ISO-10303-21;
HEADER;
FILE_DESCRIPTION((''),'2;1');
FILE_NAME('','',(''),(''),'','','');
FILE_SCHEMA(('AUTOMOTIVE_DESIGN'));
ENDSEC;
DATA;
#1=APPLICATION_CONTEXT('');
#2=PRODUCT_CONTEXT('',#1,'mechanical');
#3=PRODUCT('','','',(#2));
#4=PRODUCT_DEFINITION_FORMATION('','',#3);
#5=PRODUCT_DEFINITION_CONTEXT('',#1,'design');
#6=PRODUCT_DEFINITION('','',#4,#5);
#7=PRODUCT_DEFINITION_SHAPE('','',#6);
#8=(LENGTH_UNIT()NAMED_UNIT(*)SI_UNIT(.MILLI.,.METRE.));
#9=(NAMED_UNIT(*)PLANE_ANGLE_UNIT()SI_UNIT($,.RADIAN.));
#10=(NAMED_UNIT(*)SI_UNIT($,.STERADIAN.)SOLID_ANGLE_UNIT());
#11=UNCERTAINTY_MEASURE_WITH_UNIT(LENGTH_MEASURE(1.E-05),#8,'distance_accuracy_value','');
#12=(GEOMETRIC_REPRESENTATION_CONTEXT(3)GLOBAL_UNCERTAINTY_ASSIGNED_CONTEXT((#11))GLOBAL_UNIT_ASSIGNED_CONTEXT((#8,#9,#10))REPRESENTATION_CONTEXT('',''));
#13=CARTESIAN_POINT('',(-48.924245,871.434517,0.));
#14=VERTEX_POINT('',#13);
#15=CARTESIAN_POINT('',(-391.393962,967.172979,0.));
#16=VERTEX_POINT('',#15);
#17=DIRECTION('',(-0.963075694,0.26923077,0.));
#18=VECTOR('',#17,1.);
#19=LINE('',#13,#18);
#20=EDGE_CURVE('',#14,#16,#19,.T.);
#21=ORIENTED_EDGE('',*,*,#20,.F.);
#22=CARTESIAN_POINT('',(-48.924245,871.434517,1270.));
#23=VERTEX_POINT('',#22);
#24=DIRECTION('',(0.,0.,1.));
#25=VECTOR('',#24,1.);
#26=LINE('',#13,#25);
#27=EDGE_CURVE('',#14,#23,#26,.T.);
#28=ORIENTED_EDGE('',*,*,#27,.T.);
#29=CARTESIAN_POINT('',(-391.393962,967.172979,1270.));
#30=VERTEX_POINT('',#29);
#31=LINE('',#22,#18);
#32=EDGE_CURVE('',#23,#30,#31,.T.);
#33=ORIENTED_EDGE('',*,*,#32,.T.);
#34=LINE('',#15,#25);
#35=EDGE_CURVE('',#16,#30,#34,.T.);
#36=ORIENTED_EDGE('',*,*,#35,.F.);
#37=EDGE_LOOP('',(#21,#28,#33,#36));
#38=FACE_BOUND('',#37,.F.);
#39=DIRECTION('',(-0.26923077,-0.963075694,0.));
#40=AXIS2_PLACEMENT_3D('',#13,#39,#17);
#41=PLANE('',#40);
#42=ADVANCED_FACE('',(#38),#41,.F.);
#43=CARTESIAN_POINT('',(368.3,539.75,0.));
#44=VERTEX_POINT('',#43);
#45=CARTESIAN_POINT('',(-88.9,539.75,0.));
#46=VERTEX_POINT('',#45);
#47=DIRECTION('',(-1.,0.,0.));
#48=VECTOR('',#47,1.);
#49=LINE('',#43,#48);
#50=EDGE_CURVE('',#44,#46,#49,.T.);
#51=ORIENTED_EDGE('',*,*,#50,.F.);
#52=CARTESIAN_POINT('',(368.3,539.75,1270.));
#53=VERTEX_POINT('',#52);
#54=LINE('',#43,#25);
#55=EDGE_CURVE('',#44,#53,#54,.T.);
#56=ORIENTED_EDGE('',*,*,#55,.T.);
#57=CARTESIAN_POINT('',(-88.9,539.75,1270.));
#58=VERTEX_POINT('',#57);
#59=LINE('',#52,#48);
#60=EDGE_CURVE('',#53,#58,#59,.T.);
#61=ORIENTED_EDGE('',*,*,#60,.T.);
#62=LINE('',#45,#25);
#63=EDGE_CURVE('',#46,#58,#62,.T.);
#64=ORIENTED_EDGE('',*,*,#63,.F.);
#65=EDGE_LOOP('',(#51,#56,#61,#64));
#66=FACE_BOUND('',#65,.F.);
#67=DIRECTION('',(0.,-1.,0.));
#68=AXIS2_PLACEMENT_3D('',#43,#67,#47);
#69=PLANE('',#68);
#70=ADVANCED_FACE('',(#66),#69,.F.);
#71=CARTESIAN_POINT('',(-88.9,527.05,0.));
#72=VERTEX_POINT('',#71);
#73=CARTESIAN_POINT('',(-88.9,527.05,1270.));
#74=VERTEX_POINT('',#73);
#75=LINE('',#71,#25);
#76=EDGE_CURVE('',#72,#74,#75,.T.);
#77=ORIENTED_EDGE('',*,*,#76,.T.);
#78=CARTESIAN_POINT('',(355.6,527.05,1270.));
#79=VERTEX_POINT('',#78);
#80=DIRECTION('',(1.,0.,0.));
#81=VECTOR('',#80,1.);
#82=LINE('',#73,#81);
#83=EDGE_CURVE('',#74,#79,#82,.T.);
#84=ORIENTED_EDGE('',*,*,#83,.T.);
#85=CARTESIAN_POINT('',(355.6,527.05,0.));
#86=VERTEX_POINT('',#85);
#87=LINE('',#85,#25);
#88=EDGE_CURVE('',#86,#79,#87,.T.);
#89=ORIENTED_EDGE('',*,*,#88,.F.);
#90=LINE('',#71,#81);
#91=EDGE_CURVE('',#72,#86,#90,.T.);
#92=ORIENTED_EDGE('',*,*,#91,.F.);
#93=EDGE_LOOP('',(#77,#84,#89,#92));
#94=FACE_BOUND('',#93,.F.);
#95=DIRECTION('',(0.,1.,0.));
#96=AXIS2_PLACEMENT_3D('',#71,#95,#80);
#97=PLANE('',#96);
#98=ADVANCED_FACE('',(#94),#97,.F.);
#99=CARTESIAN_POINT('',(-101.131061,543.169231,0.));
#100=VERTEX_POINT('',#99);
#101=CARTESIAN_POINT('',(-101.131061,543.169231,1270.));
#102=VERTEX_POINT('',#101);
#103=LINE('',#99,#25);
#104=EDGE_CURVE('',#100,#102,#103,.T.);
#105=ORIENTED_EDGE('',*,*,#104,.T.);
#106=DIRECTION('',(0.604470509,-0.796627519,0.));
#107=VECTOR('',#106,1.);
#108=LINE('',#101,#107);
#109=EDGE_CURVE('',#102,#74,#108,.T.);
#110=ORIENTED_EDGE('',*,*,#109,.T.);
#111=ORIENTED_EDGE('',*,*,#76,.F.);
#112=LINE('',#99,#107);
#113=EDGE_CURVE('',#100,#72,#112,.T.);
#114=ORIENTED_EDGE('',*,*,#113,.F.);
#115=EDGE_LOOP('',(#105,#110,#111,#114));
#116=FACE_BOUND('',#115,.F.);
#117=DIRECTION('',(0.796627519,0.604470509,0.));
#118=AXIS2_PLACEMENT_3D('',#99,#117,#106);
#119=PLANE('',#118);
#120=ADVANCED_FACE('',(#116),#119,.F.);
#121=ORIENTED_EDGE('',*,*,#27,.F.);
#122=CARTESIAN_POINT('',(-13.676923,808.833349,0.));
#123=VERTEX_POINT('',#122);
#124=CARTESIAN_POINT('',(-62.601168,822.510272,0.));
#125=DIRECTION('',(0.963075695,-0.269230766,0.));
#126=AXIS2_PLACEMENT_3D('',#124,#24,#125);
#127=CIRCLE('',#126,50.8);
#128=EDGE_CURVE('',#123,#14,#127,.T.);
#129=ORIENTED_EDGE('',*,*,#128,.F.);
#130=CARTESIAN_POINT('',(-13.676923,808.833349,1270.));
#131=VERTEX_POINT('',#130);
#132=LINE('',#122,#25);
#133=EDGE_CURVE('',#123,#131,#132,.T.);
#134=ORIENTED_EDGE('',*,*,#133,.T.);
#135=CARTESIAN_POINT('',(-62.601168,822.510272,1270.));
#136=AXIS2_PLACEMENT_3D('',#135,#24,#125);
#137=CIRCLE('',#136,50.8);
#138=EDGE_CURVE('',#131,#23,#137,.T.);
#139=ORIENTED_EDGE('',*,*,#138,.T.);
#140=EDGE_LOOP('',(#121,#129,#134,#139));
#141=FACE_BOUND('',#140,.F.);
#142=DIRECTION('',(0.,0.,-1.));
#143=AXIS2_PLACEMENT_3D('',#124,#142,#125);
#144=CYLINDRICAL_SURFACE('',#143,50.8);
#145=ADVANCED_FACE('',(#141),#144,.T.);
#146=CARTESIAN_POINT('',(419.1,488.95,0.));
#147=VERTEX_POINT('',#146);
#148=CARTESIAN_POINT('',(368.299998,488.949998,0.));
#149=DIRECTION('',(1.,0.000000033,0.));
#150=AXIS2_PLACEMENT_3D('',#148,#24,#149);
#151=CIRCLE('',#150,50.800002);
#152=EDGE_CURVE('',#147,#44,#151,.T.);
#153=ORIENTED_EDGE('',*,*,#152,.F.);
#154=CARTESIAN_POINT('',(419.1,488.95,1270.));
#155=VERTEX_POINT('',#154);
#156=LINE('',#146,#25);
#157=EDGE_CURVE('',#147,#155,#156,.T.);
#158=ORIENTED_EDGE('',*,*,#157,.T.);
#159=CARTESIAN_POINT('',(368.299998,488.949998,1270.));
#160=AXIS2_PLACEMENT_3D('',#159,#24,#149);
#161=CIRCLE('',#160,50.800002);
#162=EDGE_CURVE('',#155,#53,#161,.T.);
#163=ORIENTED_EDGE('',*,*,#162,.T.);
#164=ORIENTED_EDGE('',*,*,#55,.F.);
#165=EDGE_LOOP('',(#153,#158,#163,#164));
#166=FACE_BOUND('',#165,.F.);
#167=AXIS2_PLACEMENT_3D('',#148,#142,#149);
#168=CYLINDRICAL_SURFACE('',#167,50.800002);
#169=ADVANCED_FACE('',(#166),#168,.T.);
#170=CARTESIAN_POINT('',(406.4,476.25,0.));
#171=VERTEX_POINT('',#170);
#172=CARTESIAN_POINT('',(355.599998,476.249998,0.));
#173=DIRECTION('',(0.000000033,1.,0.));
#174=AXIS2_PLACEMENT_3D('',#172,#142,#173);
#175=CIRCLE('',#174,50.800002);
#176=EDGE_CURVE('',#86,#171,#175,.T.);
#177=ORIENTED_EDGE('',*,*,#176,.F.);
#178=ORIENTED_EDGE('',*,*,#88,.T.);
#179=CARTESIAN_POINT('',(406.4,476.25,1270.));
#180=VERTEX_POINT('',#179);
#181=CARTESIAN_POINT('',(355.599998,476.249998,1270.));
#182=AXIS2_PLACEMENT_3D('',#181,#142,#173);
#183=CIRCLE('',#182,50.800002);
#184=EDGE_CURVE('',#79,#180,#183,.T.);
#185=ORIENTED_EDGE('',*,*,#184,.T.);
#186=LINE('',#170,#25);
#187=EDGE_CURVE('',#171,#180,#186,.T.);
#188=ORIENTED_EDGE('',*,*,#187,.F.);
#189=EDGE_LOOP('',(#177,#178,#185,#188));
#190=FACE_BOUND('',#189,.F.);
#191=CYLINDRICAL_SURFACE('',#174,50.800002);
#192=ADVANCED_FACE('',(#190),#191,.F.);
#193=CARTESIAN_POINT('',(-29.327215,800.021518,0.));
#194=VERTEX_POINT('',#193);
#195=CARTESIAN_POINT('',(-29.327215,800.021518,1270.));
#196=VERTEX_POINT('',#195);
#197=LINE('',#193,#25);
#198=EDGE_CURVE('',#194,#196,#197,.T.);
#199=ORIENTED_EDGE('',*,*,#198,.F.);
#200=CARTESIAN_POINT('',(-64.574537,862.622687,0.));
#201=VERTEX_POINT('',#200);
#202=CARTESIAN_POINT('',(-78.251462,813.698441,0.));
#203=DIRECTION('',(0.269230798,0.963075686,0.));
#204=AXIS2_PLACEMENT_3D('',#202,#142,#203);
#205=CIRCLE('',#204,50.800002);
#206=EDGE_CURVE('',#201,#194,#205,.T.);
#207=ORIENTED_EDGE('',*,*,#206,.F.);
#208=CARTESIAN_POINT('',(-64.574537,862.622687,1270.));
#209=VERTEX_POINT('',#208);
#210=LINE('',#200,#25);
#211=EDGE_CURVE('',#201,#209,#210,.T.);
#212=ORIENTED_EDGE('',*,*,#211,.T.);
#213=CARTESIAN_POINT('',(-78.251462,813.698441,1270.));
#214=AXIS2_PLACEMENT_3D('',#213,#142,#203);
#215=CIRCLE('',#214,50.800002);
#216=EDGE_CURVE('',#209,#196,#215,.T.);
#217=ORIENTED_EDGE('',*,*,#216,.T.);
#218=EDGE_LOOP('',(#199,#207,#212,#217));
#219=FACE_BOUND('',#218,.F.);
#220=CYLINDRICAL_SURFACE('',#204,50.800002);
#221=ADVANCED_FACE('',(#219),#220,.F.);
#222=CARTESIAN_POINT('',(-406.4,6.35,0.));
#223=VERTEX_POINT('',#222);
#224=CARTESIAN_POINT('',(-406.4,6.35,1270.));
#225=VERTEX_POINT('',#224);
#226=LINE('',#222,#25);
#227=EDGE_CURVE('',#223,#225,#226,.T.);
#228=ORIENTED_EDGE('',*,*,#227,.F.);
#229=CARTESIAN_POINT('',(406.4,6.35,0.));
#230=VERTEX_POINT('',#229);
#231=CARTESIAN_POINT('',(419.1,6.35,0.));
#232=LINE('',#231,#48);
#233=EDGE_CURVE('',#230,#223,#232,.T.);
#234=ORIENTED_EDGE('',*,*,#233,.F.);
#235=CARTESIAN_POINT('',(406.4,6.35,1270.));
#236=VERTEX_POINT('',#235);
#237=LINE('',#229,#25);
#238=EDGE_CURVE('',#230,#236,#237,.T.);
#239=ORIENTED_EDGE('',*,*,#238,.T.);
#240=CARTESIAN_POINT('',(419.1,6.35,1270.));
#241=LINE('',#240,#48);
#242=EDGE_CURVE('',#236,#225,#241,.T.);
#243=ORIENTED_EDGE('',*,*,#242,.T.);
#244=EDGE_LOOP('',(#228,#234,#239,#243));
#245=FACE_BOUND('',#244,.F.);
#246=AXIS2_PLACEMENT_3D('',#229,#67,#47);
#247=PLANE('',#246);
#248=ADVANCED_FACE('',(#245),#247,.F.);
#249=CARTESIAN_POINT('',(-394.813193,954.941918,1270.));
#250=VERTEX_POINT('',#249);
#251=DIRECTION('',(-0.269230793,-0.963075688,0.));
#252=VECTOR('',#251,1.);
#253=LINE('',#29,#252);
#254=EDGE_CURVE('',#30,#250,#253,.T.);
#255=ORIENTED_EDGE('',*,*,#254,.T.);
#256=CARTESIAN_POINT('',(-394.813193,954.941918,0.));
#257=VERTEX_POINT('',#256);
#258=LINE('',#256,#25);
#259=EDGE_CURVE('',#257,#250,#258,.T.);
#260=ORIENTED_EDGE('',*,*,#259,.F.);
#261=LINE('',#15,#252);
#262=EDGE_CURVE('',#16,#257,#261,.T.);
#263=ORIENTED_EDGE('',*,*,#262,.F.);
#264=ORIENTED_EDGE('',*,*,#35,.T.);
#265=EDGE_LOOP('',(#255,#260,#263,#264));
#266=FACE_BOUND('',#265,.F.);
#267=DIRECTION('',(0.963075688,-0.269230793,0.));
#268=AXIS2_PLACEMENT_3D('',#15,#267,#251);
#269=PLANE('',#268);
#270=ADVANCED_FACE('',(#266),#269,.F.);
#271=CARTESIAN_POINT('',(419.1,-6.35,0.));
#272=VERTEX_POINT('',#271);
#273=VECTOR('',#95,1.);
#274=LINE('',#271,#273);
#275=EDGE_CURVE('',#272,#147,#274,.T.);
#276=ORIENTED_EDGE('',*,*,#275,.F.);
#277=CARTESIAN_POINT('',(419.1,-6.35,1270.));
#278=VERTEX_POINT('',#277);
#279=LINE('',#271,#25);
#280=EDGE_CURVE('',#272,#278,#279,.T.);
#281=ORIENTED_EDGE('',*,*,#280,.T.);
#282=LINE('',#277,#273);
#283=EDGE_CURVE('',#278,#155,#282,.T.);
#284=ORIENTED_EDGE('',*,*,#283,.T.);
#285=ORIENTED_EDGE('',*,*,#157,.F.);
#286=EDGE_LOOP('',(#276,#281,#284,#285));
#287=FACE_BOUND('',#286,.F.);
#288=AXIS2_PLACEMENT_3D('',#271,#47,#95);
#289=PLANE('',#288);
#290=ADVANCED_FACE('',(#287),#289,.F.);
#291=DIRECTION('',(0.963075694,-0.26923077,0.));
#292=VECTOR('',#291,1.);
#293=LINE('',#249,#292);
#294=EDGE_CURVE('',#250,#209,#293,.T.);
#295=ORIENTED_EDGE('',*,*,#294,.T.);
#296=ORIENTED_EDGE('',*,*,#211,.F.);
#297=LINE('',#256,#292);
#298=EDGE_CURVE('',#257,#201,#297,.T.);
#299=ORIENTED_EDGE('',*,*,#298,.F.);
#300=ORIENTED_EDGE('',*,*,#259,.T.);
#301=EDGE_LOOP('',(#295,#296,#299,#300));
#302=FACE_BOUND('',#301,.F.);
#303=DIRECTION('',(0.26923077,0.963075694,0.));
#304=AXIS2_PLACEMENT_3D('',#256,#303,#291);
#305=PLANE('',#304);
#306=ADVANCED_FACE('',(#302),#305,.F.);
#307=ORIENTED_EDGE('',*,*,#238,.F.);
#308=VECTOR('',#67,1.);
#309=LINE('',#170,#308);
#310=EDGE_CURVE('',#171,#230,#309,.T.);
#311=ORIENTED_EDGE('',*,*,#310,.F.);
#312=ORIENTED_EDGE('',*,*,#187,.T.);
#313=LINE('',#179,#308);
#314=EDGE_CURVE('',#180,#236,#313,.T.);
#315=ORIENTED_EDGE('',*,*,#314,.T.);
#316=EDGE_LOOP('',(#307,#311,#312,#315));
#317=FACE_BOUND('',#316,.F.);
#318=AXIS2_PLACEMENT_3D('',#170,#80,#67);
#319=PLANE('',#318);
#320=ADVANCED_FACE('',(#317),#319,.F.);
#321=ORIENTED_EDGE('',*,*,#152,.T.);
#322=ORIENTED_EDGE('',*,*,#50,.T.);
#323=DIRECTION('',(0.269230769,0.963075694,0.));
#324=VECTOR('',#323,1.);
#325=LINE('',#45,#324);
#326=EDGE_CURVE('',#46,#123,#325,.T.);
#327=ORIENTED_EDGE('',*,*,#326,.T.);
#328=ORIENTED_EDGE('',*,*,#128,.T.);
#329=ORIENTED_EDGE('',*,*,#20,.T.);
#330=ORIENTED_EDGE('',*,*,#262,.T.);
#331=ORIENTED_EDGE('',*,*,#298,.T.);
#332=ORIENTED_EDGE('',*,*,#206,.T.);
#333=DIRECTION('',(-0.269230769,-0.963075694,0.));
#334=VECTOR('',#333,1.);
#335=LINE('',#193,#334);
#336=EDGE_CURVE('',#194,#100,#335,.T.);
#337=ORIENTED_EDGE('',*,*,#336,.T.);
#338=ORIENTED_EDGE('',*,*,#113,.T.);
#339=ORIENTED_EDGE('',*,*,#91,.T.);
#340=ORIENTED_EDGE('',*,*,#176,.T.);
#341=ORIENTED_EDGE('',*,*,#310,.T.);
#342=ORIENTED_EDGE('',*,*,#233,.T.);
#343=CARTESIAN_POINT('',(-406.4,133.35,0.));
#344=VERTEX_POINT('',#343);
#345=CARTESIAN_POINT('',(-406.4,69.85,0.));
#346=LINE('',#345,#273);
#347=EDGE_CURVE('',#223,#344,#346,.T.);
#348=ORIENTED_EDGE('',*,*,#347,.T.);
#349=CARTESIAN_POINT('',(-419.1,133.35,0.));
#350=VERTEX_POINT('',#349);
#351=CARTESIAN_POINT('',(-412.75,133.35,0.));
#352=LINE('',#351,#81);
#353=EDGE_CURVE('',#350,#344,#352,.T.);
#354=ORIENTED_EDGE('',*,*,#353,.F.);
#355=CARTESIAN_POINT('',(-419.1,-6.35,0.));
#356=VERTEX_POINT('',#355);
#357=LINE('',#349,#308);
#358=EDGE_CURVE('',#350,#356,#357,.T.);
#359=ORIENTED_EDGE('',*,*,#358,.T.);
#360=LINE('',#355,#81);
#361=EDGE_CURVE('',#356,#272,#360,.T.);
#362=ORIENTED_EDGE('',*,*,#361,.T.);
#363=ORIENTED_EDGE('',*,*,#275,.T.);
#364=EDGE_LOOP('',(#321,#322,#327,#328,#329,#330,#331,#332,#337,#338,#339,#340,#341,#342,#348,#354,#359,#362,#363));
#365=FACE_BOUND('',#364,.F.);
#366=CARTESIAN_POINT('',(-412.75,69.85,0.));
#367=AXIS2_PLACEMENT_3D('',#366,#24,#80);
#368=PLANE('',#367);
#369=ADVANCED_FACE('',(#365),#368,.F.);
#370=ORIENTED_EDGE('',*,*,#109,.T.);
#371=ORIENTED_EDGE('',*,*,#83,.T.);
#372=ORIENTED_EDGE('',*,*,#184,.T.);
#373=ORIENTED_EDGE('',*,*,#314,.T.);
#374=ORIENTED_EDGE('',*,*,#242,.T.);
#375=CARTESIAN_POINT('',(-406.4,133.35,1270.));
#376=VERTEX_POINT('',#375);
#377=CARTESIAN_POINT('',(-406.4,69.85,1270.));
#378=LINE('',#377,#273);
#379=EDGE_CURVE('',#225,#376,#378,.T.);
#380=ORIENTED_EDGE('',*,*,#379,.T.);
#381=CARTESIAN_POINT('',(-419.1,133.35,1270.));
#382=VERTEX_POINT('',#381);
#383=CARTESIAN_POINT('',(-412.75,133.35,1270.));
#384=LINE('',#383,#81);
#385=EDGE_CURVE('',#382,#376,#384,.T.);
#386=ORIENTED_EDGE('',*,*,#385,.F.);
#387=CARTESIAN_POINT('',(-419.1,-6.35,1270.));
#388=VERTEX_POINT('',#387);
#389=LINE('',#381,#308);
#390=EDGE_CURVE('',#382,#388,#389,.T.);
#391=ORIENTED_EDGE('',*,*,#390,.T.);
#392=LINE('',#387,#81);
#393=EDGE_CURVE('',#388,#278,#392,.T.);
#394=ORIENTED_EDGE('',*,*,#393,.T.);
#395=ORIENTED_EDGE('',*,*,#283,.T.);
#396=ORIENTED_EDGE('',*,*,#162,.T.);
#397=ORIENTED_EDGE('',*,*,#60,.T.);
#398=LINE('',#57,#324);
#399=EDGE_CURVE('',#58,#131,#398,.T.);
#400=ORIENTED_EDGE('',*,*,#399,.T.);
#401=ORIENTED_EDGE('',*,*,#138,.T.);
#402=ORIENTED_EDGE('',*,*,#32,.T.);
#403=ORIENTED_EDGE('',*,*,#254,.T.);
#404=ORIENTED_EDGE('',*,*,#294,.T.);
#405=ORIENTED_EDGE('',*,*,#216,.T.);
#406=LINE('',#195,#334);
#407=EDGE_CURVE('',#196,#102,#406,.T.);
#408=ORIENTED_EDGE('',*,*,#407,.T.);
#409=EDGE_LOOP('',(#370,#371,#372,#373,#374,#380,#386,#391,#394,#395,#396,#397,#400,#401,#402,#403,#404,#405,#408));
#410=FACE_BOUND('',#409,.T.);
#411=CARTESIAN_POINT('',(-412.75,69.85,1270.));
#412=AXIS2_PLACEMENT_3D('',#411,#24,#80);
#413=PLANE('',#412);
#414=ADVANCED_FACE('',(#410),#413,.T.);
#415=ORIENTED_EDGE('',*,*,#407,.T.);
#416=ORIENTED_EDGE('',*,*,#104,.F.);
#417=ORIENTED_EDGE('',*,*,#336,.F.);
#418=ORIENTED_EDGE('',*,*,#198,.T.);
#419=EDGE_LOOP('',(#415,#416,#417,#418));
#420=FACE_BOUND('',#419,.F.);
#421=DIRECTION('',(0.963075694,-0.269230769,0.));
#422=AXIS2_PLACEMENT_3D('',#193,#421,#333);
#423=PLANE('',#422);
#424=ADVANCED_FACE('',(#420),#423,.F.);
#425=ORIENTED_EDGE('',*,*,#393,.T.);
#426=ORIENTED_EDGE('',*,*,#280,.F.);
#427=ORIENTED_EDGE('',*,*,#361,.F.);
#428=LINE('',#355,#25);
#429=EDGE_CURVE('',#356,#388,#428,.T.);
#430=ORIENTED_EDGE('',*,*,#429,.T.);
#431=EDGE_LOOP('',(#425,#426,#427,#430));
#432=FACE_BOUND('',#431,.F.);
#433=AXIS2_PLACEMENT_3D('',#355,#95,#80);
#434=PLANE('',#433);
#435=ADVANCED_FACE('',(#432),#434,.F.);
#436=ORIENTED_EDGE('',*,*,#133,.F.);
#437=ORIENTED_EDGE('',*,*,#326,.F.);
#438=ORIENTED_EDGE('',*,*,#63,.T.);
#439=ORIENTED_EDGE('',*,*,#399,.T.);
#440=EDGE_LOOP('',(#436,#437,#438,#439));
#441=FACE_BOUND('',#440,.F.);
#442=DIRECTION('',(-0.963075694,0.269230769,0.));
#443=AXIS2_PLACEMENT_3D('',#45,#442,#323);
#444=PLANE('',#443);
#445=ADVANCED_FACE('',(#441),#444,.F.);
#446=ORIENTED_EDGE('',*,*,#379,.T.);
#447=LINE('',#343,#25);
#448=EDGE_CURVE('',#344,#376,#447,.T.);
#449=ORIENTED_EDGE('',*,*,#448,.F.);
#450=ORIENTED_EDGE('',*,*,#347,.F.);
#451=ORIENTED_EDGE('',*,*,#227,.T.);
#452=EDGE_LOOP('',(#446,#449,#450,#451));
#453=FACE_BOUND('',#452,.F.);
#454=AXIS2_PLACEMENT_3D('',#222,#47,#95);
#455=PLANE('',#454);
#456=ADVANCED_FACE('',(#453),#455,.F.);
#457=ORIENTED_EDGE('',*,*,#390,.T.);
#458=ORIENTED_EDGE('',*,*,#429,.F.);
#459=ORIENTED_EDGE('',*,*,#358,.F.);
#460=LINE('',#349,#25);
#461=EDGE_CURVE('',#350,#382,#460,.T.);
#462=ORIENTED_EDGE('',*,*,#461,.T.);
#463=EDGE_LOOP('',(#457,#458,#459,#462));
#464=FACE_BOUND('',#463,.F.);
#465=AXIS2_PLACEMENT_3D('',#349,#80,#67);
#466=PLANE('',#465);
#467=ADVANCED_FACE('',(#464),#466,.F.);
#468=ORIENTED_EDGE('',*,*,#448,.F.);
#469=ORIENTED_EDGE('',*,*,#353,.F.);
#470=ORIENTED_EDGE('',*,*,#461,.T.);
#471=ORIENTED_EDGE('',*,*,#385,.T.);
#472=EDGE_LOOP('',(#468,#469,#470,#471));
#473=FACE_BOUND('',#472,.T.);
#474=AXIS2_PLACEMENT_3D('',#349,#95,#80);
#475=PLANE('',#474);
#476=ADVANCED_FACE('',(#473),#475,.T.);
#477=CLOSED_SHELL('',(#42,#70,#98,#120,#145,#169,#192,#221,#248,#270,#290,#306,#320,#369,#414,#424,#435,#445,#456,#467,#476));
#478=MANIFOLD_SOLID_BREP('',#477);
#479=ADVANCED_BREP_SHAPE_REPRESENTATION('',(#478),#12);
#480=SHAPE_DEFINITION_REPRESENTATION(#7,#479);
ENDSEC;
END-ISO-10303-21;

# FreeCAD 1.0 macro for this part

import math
import FreeCAD as App
import Part
import Sketcher
from FreeCAD import Vector
Q = App.Units.Quantity

doc = App.newDocument("Part")
body = doc.addObject("PartDesign::Body", "Body")

sketch1 = body.newObject("Sketcher::SketchObject", "Sketch")
sketch1.AttachmentSupport = (doc.getObject("XY_Plane"), [""])
sketch1.MapMode = "FlatFace"
sketch1.addGeometry([
    Part.LineSegment(Vector(-419, 133, 0), Vector(-419, -6, 0)),
    Part.LineSegment(Vector(-419, -6, 0), Vector(419, -6, 0)),
    Part.LineSegment(Vector(419, -6, 0), Vector(419, 489, 0)),
    Part.ArcOfCircle(Part.Circle(Vector(368, 489, 0), Vector(0, 0, 1), 51), math.radians(0), math.radians(90)),
    Part.LineSegment(Vector(368, 540, 0), Vector(-89, 540, 0)),
    Part.LineSegment(Vector(-89, 540, 0), Vector(-14, 809, 0)),
    Part.ArcOfCircle(Part.Circle(Vector(-63, 823, 0), Vector(0, 0, 1), 51), math.radians(-16), math.radians(74)),
    Part.LineSegment(Vector(-49, 871, 0), Vector(-391, 967, 0)),
    Part.LineSegment(Vector(-391, 967, 0), Vector(-395, 955, 0)),
    Part.LineSegment(Vector(-395, 955, 0), Vector(-65, 863, 0)),
    Part.ArcOfCircle(Part.Circle(Vector(-78, 814, 0), Vector(0, 0, 1), 51), math.radians(-16), math.radians(74)),
    Part.LineSegment(Vector(-29, 800, 0), Vector(-101, 543, 0)),
    Part.LineSegment(Vector(-101, 543, 0), Vector(-89, 527, 0)),
    Part.LineSegment(Vector(-89, 527, 0), Vector(356, 527, 0)),
    Part.ArcOfCircle(Part.Circle(Vector(356, 476, 0), Vector(0, 0, 1), 51), math.radians(0), math.radians(90)),
    Part.LineSegment(Vector(406, 476, 0), Vector(406, 6, 0)),
    Part.LineSegment(Vector(406, 6, 0), Vector(-406, 6, 0)),
    Part.LineSegment(Vector(-406, 6, 0), Vector(-406, 133, 0)),
    Part.LineSegment(Vector(-406, 133, 0), Vector(-419, 133, 0)),
], False)
sketch1.addConstraint([
    Sketcher.Constraint("Coincident", 0, 2, 1, 1),
    Sketcher.Constraint("Coincident", 1, 2, 2, 1),
    Sketcher.Constraint("Tangent", 2, 2, 3, 1),
    Sketcher.Constraint("Tangent", 3, 2, 4, 1),
    Sketcher.Constraint("Coincident", 4, 2, 5, 1),
    Sketcher.Constraint("Tangent", 5, 2, 6, 1),
    Sketcher.Constraint("Tangent", 6, 2, 7, 1),
    Sketcher.Constraint("Coincident", 7, 2, 8, 1),
    Sketcher.Constraint("Coincident", 8, 2, 9, 1),
    Sketcher.Constraint("Tangent", 9, 2, 10, 2),
    Sketcher.Constraint("Tangent", 10, 1, 11, 1),
    Sketcher.Constraint("Coincident", 11, 2, 12, 1),
    Sketcher.Constraint("Coincident", 12, 2, 13, 1),
    Sketcher.Constraint("Tangent", 13, 2, 14, 2),
    Sketcher.Constraint("Tangent", 14, 1, 15, 1),
    Sketcher.Constraint("Coincident", 15, 2, 16, 1),
    Sketcher.Constraint("Coincident", 16, 2, 17, 1),
    Sketcher.Constraint("Coincident", 17, 2, 18, 1),
    Sketcher.Constraint("Coincident", 18, 2, 0, 1),
    Sketcher.Constraint("Vertical", 0),
    Sketcher.Constraint("Horizontal", 1),
    Sketcher.Constraint("Vertical", 2),
    Sketcher.Constraint("Horizontal", 4),
    Sketcher.Constraint("Horizontal", 13),
    Sketcher.Constraint("Vertical", 15),
    Sketcher.Constraint("Horizontal", 16),
    Sketcher.Constraint("Vertical", 17),
    Sketcher.Constraint("Horizontal", 18),
    Sketcher.Constraint("Equal", 3, 6),
    Sketcher.Constraint("Equal", 6, 10),
    Sketcher.Constraint("Equal", 10, 14),
    Sketcher.Constraint("Perpendicular", 5, 7),
    Sketcher.Constraint("Perpendicular", 7, 8),
    Sketcher.Constraint("Perpendicular", 8, 9),
    Sketcher.Constraint("Perpendicular", 9, 11),
    Sketcher.Constraint("Vertical", 4, 2, 12, 2),
    Sketcher.Constraint("Radius", 3, Q("2.0000001 in")),
    Sketcher.Constraint("DistanceX", 1, 1, 1, 2, Q("33 in")),
    Sketcher.Constraint("DistanceX", 4, 2, 4, 1, Q("18 in")),
    Sketcher.Constraint("DistanceX", 16, 2, 16, 1, Q("32 in")),
    Sketcher.Constraint("DistanceY", 17, 1, 17, 2, Q("5 in")),
    Sketcher.Constraint("Distance", 5, Q("11 in")),
    Sketcher.Constraint("Distance", 7, Q("14 in")),
    Sketcher.Constraint("DistanceX", 13, 1, 13, 2, Q("17.5 in")),
    Sketcher.Constraint("DistanceY", 0, 2, 0, 1, Q("5.5 in")),
    Sketcher.Constraint("DistanceY", 2, 1, 2, 2, Q("19.5 in")),
    Sketcher.Constraint("DistanceY", 15, 2, 15, 1, Q("18.5 in")),
    Sketcher.Constraint("DistanceX", -1, 1, 14, 3, Q("13.9999999 in")),
    Sketcher.Constraint("Distance", 8, Q("0.5 in")),
    Sketcher.Constraint("Distance", 9, Q("13.5 in")),
    Sketcher.Constraint("Distance", 11, Q("10.5 in")),
    Sketcher.Constraint("DistanceY", -1, 1, 3, 3, Q("19.2499999 in")),
    Sketcher.Constraint("DistanceX", 7, 2, 10, 3, Q("313.1425 mm")),
])
pad1 = body.newObject("PartDesign::Pad", "Pad")
pad1.Profile = sketch1
pad1.Length = Q("50 in")

doc.recompute()
